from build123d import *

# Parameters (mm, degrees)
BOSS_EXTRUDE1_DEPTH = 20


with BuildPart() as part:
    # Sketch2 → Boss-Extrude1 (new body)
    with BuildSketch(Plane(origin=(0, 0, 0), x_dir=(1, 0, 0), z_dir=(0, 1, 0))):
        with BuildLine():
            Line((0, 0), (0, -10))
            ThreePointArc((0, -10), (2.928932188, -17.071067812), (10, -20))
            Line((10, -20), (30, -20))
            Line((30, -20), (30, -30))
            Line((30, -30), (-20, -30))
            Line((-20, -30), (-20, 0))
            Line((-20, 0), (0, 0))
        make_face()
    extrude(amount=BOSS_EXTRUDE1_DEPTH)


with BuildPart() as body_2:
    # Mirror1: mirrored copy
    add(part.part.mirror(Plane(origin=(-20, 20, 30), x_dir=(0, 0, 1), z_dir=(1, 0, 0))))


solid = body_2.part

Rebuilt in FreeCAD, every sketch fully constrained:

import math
import FreeCAD as App
import Part
import Sketcher

doc = App.newDocument("Part")
body = doc.addObject("PartDesign::Body", "Body")

# Sketch on XZ plane
sketch1 = doc.addObject("Sketcher::SketchObject", "Sketch")
body.addObject(sketch1)
sketch1.AttachmentSupport = (doc.XZ_Plane, [""])
sketch1.MapMode = "FlatFace"
sketch1.addGeometry([
    Part.LineSegment(App.Vector(0, 10, 0), App.Vector(0, 0, 0)),  # 0
    Part.LineSegment(App.Vector(0, 0, 0), App.Vector(-20, 0, 0)),  # 1
    Part.LineSegment(App.Vector(-20, 0, 0), App.Vector(-20, 30, 0)),  # 2
    Part.LineSegment(App.Vector(-20, 30, 0), App.Vector(30, 30, 0)),  # 3
    Part.LineSegment(App.Vector(30, 30, 0), App.Vector(30, 20, 0)),  # 4
    Part.LineSegment(App.Vector(30, 20, 0), App.Vector(10, 20, 0)),  # 5
    Part.ArcOfCircle(Part.Circle(App.Vector(10, 10, 0), App.Vector(0, 0, 1), 10), math.radians(90), math.radians(180)),  # 6
], False)
sketch1.addConstraint([
    Sketcher.Constraint("Coincident", 0, 2, 1, 1),
    Sketcher.Constraint("Coincident", 1, 2, 2, 1),
    Sketcher.Constraint("Coincident", 2, 2, 3, 1),
    Sketcher.Constraint("Coincident", 3, 2, 4, 1),
    Sketcher.Constraint("Coincident", 4, 2, 5, 1),
    Sketcher.Constraint("Tangent", 5, 2, 6, 1),
    Sketcher.Constraint("Tangent", 6, 2, 0, 1),
    Sketcher.Constraint("Vertical", 0),
    Sketcher.Constraint("Horizontal", 1),
    Sketcher.Constraint("Vertical", 2),
    Sketcher.Constraint("Horizontal", 3),
    Sketcher.Constraint("Vertical", 4),
    Sketcher.Constraint("Horizontal", 5),
    Sketcher.Constraint("Coincident", 0, 2, -1, 1),
    Sketcher.Constraint("Equal", 1, 5),
    Sketcher.Constraint("Equal", 0, 4),
    Sketcher.Constraint("Radius", 6, 10.0),
    Sketcher.Constraint("DistanceX", 1, 2, 1, 1, 20.0),
    Sketcher.Constraint("DistanceY", 0, 2, 0, 1, 10.0),
])
pad1 = doc.addObject("PartDesign::Pad", "Pad")
body.addObject(pad1)
pad1.Profile = sketch1
pad1.Length = 20
pad1.Reversed = True
body2 = doc.addObject("PartDesign::Body", "Body001")
doc.recompute()

mirroring = doc.addObject("Part::Mirroring", "Mirroring")
mirroring.Source = body
mirroring.Base = App.Vector(-20, 20, 30)
mirroring.Normal = App.Vector(1, 0, 0)
body2.BaseFeature = mirroring
doc.recompute()
body.Visibility = False
mirroring.Visibility = False

doc.recompute()
